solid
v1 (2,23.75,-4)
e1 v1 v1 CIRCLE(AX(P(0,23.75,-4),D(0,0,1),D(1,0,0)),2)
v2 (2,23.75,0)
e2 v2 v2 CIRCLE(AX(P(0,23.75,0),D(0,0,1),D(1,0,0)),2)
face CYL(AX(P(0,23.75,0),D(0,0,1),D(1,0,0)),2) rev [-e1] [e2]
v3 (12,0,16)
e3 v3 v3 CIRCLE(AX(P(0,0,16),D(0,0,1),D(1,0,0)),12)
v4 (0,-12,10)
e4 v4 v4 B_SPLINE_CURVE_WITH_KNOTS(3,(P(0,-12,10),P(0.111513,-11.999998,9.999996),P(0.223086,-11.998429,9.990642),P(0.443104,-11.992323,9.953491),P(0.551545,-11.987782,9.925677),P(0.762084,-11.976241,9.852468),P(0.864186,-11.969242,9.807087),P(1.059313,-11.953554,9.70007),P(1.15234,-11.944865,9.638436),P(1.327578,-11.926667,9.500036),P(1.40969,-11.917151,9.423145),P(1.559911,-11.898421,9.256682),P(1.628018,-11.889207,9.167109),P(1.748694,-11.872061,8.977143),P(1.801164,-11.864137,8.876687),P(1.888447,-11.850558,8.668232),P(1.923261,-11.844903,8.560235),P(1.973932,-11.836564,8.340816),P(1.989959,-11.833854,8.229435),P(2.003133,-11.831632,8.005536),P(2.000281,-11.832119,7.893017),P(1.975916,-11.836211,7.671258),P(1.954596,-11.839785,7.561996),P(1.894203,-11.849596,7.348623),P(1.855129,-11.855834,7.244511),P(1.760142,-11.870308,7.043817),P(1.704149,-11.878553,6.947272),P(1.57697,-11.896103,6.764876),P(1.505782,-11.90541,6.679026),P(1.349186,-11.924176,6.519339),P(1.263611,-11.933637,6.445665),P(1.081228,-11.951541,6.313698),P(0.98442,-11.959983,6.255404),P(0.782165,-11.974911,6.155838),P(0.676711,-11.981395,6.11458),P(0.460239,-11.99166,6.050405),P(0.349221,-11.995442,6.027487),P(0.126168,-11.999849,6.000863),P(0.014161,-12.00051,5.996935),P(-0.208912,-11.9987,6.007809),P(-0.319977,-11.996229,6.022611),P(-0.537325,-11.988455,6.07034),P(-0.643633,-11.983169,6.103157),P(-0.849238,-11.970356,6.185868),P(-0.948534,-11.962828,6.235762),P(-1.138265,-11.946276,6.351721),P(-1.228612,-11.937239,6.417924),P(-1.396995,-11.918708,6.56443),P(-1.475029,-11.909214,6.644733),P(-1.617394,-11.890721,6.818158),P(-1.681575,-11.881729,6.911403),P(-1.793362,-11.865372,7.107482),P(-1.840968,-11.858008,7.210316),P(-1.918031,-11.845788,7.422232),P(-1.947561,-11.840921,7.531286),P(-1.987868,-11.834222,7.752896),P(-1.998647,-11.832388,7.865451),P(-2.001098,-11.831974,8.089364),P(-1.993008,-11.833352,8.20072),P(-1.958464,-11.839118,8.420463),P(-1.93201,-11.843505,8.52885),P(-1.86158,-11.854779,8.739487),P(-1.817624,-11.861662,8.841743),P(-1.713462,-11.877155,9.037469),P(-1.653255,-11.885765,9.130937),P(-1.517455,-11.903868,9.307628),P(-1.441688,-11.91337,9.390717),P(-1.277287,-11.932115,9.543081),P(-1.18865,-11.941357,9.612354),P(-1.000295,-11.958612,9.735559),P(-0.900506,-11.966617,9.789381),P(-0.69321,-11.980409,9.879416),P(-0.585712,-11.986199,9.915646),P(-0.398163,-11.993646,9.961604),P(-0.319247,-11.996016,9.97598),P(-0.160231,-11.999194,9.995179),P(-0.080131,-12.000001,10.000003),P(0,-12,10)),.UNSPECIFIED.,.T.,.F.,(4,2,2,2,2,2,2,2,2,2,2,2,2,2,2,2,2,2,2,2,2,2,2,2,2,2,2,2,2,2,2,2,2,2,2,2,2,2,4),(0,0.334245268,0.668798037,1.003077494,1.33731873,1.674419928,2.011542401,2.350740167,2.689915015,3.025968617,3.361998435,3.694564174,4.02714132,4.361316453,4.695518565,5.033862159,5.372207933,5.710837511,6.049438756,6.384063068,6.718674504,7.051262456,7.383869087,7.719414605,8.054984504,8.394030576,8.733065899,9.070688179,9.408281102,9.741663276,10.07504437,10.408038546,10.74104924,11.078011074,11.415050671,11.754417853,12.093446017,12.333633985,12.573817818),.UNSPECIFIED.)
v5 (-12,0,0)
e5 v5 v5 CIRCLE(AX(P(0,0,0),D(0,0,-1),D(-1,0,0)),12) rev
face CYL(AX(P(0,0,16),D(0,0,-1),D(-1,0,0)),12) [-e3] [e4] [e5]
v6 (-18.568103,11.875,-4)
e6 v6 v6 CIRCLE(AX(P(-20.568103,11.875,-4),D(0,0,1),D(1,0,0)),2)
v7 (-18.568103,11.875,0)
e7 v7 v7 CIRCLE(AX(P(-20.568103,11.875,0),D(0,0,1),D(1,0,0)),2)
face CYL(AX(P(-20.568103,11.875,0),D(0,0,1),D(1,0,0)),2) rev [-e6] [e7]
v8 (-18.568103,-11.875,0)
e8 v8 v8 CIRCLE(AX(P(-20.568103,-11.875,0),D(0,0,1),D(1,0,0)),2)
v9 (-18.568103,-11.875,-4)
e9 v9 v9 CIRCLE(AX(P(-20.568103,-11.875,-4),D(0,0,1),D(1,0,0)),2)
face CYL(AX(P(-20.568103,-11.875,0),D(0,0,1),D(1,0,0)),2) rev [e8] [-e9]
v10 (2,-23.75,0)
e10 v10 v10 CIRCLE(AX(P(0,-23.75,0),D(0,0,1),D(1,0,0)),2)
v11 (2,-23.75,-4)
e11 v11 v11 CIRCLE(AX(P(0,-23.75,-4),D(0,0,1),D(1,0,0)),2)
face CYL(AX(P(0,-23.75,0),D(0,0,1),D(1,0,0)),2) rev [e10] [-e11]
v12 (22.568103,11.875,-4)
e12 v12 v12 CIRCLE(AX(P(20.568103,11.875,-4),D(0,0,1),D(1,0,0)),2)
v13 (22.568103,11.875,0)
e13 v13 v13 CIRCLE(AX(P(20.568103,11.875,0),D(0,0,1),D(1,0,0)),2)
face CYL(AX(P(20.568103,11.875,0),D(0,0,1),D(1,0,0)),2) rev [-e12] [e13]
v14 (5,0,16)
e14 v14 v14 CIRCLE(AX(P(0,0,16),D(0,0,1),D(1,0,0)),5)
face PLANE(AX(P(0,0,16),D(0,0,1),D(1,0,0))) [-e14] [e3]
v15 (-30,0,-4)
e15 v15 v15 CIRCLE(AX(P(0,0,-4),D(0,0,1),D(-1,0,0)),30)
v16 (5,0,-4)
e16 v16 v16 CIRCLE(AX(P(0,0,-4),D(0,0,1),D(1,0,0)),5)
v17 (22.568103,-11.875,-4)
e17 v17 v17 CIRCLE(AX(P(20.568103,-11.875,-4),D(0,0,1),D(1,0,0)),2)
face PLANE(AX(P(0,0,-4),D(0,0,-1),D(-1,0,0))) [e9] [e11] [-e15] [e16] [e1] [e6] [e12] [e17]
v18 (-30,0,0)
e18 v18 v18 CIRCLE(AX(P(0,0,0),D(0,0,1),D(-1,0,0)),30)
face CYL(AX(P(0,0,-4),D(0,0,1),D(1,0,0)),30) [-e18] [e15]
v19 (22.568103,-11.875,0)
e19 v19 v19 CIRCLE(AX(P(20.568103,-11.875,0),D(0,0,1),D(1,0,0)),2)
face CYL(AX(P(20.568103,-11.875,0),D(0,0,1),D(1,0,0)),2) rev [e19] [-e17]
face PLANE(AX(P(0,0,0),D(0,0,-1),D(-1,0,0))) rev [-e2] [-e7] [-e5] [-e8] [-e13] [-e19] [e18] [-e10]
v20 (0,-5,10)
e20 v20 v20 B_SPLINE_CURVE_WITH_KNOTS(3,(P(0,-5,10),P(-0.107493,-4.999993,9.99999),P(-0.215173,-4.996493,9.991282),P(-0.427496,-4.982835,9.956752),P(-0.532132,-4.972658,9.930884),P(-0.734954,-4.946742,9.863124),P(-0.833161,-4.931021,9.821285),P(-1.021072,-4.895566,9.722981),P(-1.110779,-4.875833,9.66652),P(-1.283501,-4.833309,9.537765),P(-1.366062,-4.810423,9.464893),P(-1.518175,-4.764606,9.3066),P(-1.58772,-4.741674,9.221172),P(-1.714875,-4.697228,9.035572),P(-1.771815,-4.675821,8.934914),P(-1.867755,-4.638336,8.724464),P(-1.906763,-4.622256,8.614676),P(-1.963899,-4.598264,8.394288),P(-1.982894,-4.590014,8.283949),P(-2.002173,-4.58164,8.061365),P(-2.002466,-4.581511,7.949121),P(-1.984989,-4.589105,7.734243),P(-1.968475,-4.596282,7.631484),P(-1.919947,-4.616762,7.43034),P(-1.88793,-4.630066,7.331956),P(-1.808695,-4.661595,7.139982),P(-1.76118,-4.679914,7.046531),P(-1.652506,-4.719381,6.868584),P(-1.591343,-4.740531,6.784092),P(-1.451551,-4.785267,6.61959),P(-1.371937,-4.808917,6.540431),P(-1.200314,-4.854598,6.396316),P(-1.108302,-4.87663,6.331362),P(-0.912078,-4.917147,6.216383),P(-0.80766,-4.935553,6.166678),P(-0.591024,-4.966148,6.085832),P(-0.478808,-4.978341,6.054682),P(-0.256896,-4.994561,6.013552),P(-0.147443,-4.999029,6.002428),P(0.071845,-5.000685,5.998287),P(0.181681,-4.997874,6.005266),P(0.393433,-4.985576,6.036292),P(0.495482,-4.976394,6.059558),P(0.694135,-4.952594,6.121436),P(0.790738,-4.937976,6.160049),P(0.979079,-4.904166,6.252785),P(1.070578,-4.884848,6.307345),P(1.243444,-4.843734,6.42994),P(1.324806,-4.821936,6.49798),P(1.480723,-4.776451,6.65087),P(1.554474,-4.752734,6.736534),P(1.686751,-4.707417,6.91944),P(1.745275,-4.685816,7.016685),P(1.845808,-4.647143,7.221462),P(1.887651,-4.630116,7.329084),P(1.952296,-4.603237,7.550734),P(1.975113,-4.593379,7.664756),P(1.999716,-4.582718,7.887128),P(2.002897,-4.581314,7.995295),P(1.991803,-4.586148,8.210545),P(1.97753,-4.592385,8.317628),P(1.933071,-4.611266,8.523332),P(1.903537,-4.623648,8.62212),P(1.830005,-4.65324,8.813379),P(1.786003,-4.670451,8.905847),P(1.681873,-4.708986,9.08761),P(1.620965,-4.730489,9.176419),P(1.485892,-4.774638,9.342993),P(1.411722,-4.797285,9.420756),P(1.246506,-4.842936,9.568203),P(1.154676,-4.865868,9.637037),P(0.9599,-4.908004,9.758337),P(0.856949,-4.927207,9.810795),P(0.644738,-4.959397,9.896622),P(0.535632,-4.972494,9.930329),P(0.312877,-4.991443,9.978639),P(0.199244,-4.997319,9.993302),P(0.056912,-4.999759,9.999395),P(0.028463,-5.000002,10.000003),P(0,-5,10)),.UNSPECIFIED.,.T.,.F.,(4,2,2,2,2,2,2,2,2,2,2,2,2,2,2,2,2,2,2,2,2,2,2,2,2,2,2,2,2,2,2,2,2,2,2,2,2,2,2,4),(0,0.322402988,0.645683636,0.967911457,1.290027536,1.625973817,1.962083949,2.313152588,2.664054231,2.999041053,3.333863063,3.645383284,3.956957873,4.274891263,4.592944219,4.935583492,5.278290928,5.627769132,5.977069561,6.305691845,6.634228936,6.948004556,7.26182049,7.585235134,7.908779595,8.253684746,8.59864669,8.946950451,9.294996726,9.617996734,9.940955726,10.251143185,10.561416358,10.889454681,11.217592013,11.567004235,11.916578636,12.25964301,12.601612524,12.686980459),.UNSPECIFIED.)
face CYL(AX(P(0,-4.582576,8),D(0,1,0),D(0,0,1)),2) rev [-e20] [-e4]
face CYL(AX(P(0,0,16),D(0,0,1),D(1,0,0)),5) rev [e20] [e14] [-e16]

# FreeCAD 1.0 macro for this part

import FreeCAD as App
import Part
import Sketcher
from FreeCAD import Vector
Q = App.Units.Quantity


def add_polygon(sketch, points):
    """Adds a closed chain of lines whose ends are joined by coincident constraints."""
    first, n = sketch.GeometryCount, len(points)
    for a, b in zip(points, points[1:] + points[:1]):
        sketch.addGeometry(Part.LineSegment(App.Vector(*a, 0), App.Vector(*b, 0)), False)
    for i in range(n):
        sketch.addConstraint(Sketcher.Constraint("Coincident", first + i, 2, first + (i + 1) % n, 1))

doc = App.newDocument("Part")
body = doc.addObject("PartDesign::Body", "Body")

# Sketch on XY plane
sketch1 = body.newObject("Sketcher::SketchObject", "Sketch")
sketch1.AttachmentSupport = (doc.getObject("XY_Plane"), [""])
sketch1.MapMode = "FlatFace"
sketch1.addGeometry(Part.Circle(Vector(0, 0, 0), Vector(0, 0, 1), 30), False)
sketch1.addConstraint(Sketcher.Constraint("Coincident", 0, 3, -1, 1))
sketch1.addConstraint(Sketcher.Constraint("Diameter", 0, Q("60 mm")))
pad1 = body.newObject("PartDesign::Pad", "Pad")
pad1.Profile = sketch1
pad1.Length = 4
pad1.Reversed = True

# Sketch on XY plane
sketch2 = body.newObject("Sketcher::SketchObject", "Sketch001")
sketch2.AttachmentSupport = (doc.getObject("XY_Plane"), [""])
sketch2.MapMode = "FlatFace"
sketch2.addGeometry(Part.Circle(Vector(0, 0, 0), Vector(0, 0, 1), 12), False)
sketch2.addConstraint(Sketcher.Constraint("Coincident", 0, 3, -1, 1))
sketch2.addConstraint(Sketcher.Constraint("Diameter", 0, Q("24 mm")))
pad2 = body.newObject("PartDesign::Pad", "Pad001")
pad2.Profile = sketch2
pad2.Length = 16

# Sketch on XY plane
sketch3 = body.newObject("Sketcher::SketchObject", "Sketch002")
sketch3.AttachmentSupport = (doc.getObject("XY_Plane"), [""])
sketch3.MapMode = "FlatFace"
sketch3.addGeometry(Part.Circle(Vector(20.6, -11.9, 0), Vector(0, 0, 1), 2), False)
sketch3.addGeometry(Part.Circle(Vector(0, 23.8, 0), Vector(0, 0, 1), 2), False)
sketch3.addGeometry(Part.Circle(Vector(0, -23.8, 0), Vector(0, 0, 1), 2), False)
sketch3.addGeometry(Part.Circle(Vector(20.6, 11.9, 0), Vector(0, 0, 1), 2), False)
sketch3.addGeometry(Part.Circle(Vector(-20.6, 11.9, 0), Vector(0, 0, 1), 2), False)
sketch3.addGeometry(Part.Circle(Vector(-20.6, -11.9, 0), Vector(0, 0, 1), 2), False)
sketch3.addConstraint(Sketcher.Constraint("Equal", 0, 1))
sketch3.addConstraint(Sketcher.Constraint("Equal", 1, 2))
sketch3.addConstraint(Sketcher.Constraint("Equal", 2, 3))
sketch3.addConstraint(Sketcher.Constraint("Equal", 3, 4))
sketch3.addConstraint(Sketcher.Constraint("Equal", 4, 5))
sketch3.addConstraint(Sketcher.Constraint("Symmetric", 1, 3, 2, 3, -1, 1))
sketch3.addConstraint(Sketcher.Constraint("Symmetric", 0, 3, 4, 3, -1, 1))
sketch3.addConstraint(Sketcher.Constraint("Symmetric", 3, 3, 5, 3, -1, 1))
sketch3.addConstraint(Sketcher.Constraint("Symmetric", 3, 3, 4, 3, -2))
sketch3.addConstraint(Sketcher.Constraint("PointOnObject", 1, 3, -2))
sketch3.addConstraint(Sketcher.Constraint("Diameter", 0, Q("4 mm")))
sketch3.addConstraint(Sketcher.Constraint("DistanceY", 2, 3, 1, 3, Q("47.5 mm")))
sketch3.addConstraint(Sketcher.Constraint("DistanceY", 0, 3, 3, 3, Q("23.75 mm")))
sketch3.addConstraint(Sketcher.Constraint("DistanceX", -1, 1, 0, 3, Q("20.568103 mm")))
doc.recompute()
hole = body.newObject("PartDesign::Hole", "Hole")
hole.Profile = sketch3
hole.ThreadType = "None"
hole.Diameter = 4
hole.DepthType = "ThroughAll"

# Sketch on XY plane
sketch4 = body.newObject("Sketcher::SketchObject", "Sketch003")
sketch4.AttachmentSupport = (doc.getObject("XY_Plane"), [""])
sketch4.MapMode = "FlatFace"
sketch4.AttachmentOffset = App.Placement(Vector(0, 0, 16), App.Rotation())
sketch4.addGeometry(Part.Circle(Vector(0, 0, 0), Vector(0, 0, 1), 5), False)
sketch4.addConstraint(Sketcher.Constraint("Coincident", 0, 3, -1, 1))
sketch4.addConstraint(Sketcher.Constraint("Diameter", 0, Q("10 mm")))
doc.recompute()
hole2 = body.newObject("PartDesign::Hole", "Hole001")
hole2.Profile = sketch4
hole2.ThreadType = "None"
hole2.Diameter = 10
hole2.DepthType = "ThroughAll"

# Sketch on YZ plane
sketch5 = body.newObject("Sketcher::SketchObject", "Sketch004")
sketch5.AttachmentSupport = (doc.getObject("YZ_Plane"), [""])
sketch5.MapMode = "FlatFace"
add_polygon(sketch5, [(-28.6, 8), (-4.6, 8), (-4.6, 10), (-28.6, 10)])  # lines 0-3
sketch5.addGeometry(Part.LineSegment(Vector(-4.6, 8, 0), Vector(-28.6, 8, 0)), True)  # axis
sketch5.addConstraint(Sketcher.Constraint("Horizontal", 0))
sketch5.addConstraint(Sketcher.Constraint("Vertical", 1))
sketch5.addConstraint(Sketcher.Constraint("Horizontal", 2))
sketch5.addConstraint(Sketcher.Constraint("Vertical", 3))
sketch5.addConstraint(Sketcher.Constraint("Horizontal", 4))
sketch5.addConstraint(Sketcher.Constraint("Coincident", 4, 1, 0, 2))
sketch5.addConstraint(Sketcher.Constraint("Vertical", 2, 2, 4, 2))
sketch5.addConstraint(Sketcher.Constraint("DistanceX", 0, 1, 0, 2, Q("24 mm")))
sketch5.addConstraint(Sketcher.Constraint("DistanceY", 1, 1, 1, 2, Q("2 mm")))
sketch5.addConstraint(Sketcher.Constraint("DistanceY", -1, 1, 0, 2, Q("8 mm")))
sketch5.addConstraint(Sketcher.Constraint("DistanceX", 0, 2, -1, 1, Q("4.582576 mm")))
groove = body.newObject("PartDesign::Groove", "Groove")
groove.Profile = sketch5
groove.ReferenceAxis = (sketch5, ["Axis0"])
groove.Angle = 360

doc.recompute()
